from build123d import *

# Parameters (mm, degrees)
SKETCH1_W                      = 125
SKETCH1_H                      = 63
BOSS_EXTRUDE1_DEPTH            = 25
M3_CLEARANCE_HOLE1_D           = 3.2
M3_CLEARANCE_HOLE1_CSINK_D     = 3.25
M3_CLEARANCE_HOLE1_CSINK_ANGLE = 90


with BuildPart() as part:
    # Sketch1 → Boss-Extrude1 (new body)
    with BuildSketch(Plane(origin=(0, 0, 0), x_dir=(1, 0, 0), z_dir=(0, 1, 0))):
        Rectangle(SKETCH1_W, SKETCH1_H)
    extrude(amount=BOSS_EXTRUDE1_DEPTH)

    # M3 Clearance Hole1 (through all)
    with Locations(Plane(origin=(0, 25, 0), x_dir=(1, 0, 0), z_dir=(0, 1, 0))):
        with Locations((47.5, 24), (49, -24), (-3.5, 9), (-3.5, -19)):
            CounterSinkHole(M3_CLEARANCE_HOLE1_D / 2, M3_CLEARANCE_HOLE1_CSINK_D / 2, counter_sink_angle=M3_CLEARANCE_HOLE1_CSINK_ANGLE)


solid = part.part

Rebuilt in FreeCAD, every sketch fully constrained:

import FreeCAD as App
import Part
import Sketcher
Q = App.Units.Quantity


def add_polygon(sketch, points):
    """Adds a closed chain of lines whose ends are joined by coincident constraints."""
    first, n = sketch.GeometryCount, len(points)
    for a, b in zip(points, points[1:] + points[:1]):
        sketch.addGeometry(Part.LineSegment(App.Vector(*a, 0), App.Vector(*b, 0)), False)
    for i in range(n):
        sketch.addConstraint(Sketcher.Constraint("Coincident", first + i, 2, first + (i + 1) % n, 1))

doc = App.newDocument("Part")
params = doc.addObject("Spreadsheet::Sheet", "Params")
for row, (alias, value) in enumerate([
    ("sketch1_width", "125 mm"),
    ("sketch1_height", "63 mm"),
    ("pad1_length", "25 mm"),
    ("sketch2_diameter", "3.2 mm"),
    ("hole_diameter", "3.2 mm"),
    ("hole_csink_diameter", "3.25 mm"),
], start=1):
    params.set(f"A{row}", alias)
    params.set(f"B{row}", "=" + value)
    params.setAlias(f"B{row}", alias)

body = doc.addObject("PartDesign::Body", "Body")

# Sketch on XZ plane
sketch1 = body.newObject("Sketcher::SketchObject", "Sketch")
sketch1.AttachmentSupport = (doc.getObject("XZ_Plane"), [""])
sketch1.MapMode = "FlatFace"
add_polygon(sketch1, [(-62, -32), (-62, 32), (62, 32), (62, -32)])  # lines 0-3
sketch1.addConstraint([
    Sketcher.Constraint("Vertical", 0),
    Sketcher.Constraint("Horizontal", 1),
    Sketcher.Constraint("Vertical", 2),
    Sketcher.Constraint("Horizontal", 3),
    Sketcher.Constraint("Symmetric", 0, 2, 2, 2, -1, 1),
    Sketcher.Constraint("DistanceX", 1, 1, 1, 2, Q("125 mm")),
    Sketcher.Constraint("DistanceY", 0, 1, 0, 2, Q("63 mm")),
])
sketch1.setExpression("Constraints[9]", "Params.sketch1_width")
sketch1.setExpression("Constraints[10]", "Params.sketch1_height")
pad1 = body.newObject("PartDesign::Pad", "Pad")
pad1.Profile = sketch1
pad1.setExpression("Length", "Params.pad1_length")
pad1.Reversed = True

# Sketch on XZ plane
sketch2 = body.newObject("Sketcher::SketchObject", "Sketch001")
sketch2.AttachmentSupport = (doc.getObject("XZ_Plane"), [""])
sketch2.MapMode = "FlatFace"
sketch2.AttachmentOffset = App.Placement(App.Vector(0, 0, -25), App.Rotation())
sketch2.addGeometry([
    Part.Circle(App.Vector(47.5, -24, 0), App.Vector(0, 0, 1), 1.6),
    Part.Circle(App.Vector(49, 24, 0), App.Vector(0, 0, 1), 1.6),
    Part.Circle(App.Vector(-3.5, -9, 0), App.Vector(0, 0, 1), 1.6),
    Part.Circle(App.Vector(-3.5, 19, 0), App.Vector(0, 0, 1), 1.6),
], False)
sketch2.addConstraint([
    Sketcher.Constraint("Equal", 0, 1),
    Sketcher.Constraint("Equal", 1, 2),
    Sketcher.Constraint("Equal", 2, 3),
    Sketcher.Constraint("Vertical", 2, 3, 3, 3),
    Sketcher.Constraint("Diameter", 0, Q("3.2 mm")),
    Sketcher.Constraint("DistanceY", 0, 3, -1, 1, Q("24 mm")),
    Sketcher.Constraint("DistanceX", -1, 1, 1, 3, Q("49 mm")),
    Sketcher.Constraint("DistanceY", -1, 1, 1, 3, Q("24 mm")),
    Sketcher.Constraint("DistanceY", 2, 3, -1, 1, Q("9 mm")),
    Sketcher.Constraint("DistanceY", -1, 1, 3, 3, Q("19 mm")),
    Sketcher.Constraint("DistanceX", 2, 3, 0, 3, Q("51 mm")),
    Sketcher.Constraint("DistanceX", -1, 1, 0, 3, Q("47.5 mm")),
])
sketch2.setExpression("Constraints[4]", "Params.sketch2_diameter")
doc.recompute()
hole = body.newObject("PartDesign::Hole", "Hole")
hole.Profile = sketch2
hole.ThreadType = "None"
hole.setExpression("Diameter", "Params.hole_diameter")
hole.DepthType = "ThroughAll"
hole.HoleCutType = "Countersink"
hole.setExpression("HoleCutDiameter", "Params.hole_csink_diameter")
hole.HoleCutCountersinkAngle = 90
hole.Reversed = True

doc.recompute()
